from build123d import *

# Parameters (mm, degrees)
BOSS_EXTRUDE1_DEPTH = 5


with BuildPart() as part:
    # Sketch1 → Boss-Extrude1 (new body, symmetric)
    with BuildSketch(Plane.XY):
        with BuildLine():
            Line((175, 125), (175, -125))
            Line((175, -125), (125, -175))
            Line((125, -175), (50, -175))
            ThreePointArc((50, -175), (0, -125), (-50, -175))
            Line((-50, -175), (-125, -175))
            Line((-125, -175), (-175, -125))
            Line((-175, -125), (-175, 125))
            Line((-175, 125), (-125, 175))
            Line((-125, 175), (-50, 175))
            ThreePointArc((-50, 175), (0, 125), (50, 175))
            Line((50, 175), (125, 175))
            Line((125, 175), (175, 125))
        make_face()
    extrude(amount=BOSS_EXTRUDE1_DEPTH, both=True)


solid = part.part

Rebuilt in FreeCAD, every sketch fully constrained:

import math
import FreeCAD as App
import Part
import Sketcher

doc = App.newDocument("Part")
body = doc.addObject("PartDesign::Body", "Body")

# Sketch on XY plane
sketch1 = body.newObject("Sketcher::SketchObject", "Sketch")
sketch1.AttachmentSupport = (doc.getObject("XY_Plane"), [""])
sketch1.MapMode = "FlatFace"
sketch1.addGeometry([
    Part.LineSegment(App.Vector(175, -125, 0), App.Vector(175, 125, 0)),  # 0
    Part.LineSegment(App.Vector(175, 125, 0), App.Vector(125, 175, 0)),  # 1
    Part.LineSegment(App.Vector(125, 175, 0), App.Vector(50, 175, 0)),  # 2
    Part.ArcOfCircle(Part.Circle(App.Vector(0, 175, 0), App.Vector(0, 0, 1), 50), math.radians(180), math.radians(360)),  # 3
    Part.LineSegment(App.Vector(-50, 175, 0), App.Vector(-125, 175, 0)),  # 4
    Part.LineSegment(App.Vector(-125, 175, 0), App.Vector(-175, 125, 0)),  # 5
    Part.LineSegment(App.Vector(-175, 125, 0), App.Vector(-175, -125, 0)),  # 6
    Part.LineSegment(App.Vector(-175, -125, 0), App.Vector(-125, -175, 0)),  # 7
    Part.LineSegment(App.Vector(-125, -175, 0), App.Vector(-50, -175, 0)),  # 8
    Part.ArcOfCircle(Part.Circle(App.Vector(0, -175, 0), App.Vector(0, 0, 1), 50), math.radians(0), math.radians(180)),  # 9
    Part.LineSegment(App.Vector(50, -175, 0), App.Vector(125, -175, 0)),  # 10
    Part.LineSegment(App.Vector(125, -175, 0), App.Vector(175, -125, 0)),  # 11
], False)
sketch1.addConstraint([
    Sketcher.Constraint("Coincident", 0, 2, 1, 1),
    Sketcher.Constraint("Coincident", 1, 2, 2, 1),
    Sketcher.Constraint("Coincident", 2, 2, 3, 2),
    Sketcher.Constraint("Coincident", 3, 1, 4, 1),
    Sketcher.Constraint("Coincident", 4, 2, 5, 1),
    Sketcher.Constraint("Coincident", 5, 2, 6, 1),
    Sketcher.Constraint("Coincident", 6, 2, 7, 1),
    Sketcher.Constraint("Coincident", 7, 2, 8, 1),
    Sketcher.Constraint("Coincident", 8, 2, 9, 2),
    Sketcher.Constraint("Coincident", 9, 1, 10, 1),
    Sketcher.Constraint("Coincident", 10, 2, 11, 1),
    Sketcher.Constraint("Coincident", 11, 2, 0, 1),
    Sketcher.Constraint("Vertical", 0),
    Sketcher.Constraint("Horizontal", 2),
    Sketcher.Constraint("Horizontal", 4),
    Sketcher.Constraint("Vertical", 6),
    Sketcher.Constraint("Horizontal", 8),
    Sketcher.Constraint("Horizontal", 10),
    Sketcher.Constraint("Equal", 3, 9),
    Sketcher.Constraint("Symmetric", 3, 3, 9, 3, -1, 1),
    Sketcher.Constraint("Symmetric", 0, 2, 6, 2, -1, 1),
    Sketcher.Constraint("Symmetric", 1, 2, 7, 2, -1, 1),
    Sketcher.Constraint("Symmetric", 4, 2, 10, 2, -1, 1),
    Sketcher.Constraint("Symmetric", 2, 2, 3, 1, -2),
    Sketcher.Constraint("Perpendicular", 1, 5),
    Sketcher.Constraint("Perpendicular", 7, 11),
    Sketcher.Constraint("Horizontal", 3, 3, 1, 2),
    Sketcher.Constraint("Horizontal", 0, 2, 5, 2),
    Sketcher.Constraint("Vertical", 4, 2, 7, 2),
    Sketcher.Constraint("Radius", 3, 50.0),
    Sketcher.Constraint("DistanceX", 2, 2, 2, 1, 75.0),
    Sketcher.Constraint("DistanceY", 0, 1, 0, 2, 250.0),
    Sketcher.Constraint("DistanceY", -1, 1, 3, 3, 175.0),
])
pad1 = body.newObject("PartDesign::Pad", "Pad")
pad1.Profile = sketch1
pad1.Length = 10
pad1.Midplane = True

doc.recompute()
